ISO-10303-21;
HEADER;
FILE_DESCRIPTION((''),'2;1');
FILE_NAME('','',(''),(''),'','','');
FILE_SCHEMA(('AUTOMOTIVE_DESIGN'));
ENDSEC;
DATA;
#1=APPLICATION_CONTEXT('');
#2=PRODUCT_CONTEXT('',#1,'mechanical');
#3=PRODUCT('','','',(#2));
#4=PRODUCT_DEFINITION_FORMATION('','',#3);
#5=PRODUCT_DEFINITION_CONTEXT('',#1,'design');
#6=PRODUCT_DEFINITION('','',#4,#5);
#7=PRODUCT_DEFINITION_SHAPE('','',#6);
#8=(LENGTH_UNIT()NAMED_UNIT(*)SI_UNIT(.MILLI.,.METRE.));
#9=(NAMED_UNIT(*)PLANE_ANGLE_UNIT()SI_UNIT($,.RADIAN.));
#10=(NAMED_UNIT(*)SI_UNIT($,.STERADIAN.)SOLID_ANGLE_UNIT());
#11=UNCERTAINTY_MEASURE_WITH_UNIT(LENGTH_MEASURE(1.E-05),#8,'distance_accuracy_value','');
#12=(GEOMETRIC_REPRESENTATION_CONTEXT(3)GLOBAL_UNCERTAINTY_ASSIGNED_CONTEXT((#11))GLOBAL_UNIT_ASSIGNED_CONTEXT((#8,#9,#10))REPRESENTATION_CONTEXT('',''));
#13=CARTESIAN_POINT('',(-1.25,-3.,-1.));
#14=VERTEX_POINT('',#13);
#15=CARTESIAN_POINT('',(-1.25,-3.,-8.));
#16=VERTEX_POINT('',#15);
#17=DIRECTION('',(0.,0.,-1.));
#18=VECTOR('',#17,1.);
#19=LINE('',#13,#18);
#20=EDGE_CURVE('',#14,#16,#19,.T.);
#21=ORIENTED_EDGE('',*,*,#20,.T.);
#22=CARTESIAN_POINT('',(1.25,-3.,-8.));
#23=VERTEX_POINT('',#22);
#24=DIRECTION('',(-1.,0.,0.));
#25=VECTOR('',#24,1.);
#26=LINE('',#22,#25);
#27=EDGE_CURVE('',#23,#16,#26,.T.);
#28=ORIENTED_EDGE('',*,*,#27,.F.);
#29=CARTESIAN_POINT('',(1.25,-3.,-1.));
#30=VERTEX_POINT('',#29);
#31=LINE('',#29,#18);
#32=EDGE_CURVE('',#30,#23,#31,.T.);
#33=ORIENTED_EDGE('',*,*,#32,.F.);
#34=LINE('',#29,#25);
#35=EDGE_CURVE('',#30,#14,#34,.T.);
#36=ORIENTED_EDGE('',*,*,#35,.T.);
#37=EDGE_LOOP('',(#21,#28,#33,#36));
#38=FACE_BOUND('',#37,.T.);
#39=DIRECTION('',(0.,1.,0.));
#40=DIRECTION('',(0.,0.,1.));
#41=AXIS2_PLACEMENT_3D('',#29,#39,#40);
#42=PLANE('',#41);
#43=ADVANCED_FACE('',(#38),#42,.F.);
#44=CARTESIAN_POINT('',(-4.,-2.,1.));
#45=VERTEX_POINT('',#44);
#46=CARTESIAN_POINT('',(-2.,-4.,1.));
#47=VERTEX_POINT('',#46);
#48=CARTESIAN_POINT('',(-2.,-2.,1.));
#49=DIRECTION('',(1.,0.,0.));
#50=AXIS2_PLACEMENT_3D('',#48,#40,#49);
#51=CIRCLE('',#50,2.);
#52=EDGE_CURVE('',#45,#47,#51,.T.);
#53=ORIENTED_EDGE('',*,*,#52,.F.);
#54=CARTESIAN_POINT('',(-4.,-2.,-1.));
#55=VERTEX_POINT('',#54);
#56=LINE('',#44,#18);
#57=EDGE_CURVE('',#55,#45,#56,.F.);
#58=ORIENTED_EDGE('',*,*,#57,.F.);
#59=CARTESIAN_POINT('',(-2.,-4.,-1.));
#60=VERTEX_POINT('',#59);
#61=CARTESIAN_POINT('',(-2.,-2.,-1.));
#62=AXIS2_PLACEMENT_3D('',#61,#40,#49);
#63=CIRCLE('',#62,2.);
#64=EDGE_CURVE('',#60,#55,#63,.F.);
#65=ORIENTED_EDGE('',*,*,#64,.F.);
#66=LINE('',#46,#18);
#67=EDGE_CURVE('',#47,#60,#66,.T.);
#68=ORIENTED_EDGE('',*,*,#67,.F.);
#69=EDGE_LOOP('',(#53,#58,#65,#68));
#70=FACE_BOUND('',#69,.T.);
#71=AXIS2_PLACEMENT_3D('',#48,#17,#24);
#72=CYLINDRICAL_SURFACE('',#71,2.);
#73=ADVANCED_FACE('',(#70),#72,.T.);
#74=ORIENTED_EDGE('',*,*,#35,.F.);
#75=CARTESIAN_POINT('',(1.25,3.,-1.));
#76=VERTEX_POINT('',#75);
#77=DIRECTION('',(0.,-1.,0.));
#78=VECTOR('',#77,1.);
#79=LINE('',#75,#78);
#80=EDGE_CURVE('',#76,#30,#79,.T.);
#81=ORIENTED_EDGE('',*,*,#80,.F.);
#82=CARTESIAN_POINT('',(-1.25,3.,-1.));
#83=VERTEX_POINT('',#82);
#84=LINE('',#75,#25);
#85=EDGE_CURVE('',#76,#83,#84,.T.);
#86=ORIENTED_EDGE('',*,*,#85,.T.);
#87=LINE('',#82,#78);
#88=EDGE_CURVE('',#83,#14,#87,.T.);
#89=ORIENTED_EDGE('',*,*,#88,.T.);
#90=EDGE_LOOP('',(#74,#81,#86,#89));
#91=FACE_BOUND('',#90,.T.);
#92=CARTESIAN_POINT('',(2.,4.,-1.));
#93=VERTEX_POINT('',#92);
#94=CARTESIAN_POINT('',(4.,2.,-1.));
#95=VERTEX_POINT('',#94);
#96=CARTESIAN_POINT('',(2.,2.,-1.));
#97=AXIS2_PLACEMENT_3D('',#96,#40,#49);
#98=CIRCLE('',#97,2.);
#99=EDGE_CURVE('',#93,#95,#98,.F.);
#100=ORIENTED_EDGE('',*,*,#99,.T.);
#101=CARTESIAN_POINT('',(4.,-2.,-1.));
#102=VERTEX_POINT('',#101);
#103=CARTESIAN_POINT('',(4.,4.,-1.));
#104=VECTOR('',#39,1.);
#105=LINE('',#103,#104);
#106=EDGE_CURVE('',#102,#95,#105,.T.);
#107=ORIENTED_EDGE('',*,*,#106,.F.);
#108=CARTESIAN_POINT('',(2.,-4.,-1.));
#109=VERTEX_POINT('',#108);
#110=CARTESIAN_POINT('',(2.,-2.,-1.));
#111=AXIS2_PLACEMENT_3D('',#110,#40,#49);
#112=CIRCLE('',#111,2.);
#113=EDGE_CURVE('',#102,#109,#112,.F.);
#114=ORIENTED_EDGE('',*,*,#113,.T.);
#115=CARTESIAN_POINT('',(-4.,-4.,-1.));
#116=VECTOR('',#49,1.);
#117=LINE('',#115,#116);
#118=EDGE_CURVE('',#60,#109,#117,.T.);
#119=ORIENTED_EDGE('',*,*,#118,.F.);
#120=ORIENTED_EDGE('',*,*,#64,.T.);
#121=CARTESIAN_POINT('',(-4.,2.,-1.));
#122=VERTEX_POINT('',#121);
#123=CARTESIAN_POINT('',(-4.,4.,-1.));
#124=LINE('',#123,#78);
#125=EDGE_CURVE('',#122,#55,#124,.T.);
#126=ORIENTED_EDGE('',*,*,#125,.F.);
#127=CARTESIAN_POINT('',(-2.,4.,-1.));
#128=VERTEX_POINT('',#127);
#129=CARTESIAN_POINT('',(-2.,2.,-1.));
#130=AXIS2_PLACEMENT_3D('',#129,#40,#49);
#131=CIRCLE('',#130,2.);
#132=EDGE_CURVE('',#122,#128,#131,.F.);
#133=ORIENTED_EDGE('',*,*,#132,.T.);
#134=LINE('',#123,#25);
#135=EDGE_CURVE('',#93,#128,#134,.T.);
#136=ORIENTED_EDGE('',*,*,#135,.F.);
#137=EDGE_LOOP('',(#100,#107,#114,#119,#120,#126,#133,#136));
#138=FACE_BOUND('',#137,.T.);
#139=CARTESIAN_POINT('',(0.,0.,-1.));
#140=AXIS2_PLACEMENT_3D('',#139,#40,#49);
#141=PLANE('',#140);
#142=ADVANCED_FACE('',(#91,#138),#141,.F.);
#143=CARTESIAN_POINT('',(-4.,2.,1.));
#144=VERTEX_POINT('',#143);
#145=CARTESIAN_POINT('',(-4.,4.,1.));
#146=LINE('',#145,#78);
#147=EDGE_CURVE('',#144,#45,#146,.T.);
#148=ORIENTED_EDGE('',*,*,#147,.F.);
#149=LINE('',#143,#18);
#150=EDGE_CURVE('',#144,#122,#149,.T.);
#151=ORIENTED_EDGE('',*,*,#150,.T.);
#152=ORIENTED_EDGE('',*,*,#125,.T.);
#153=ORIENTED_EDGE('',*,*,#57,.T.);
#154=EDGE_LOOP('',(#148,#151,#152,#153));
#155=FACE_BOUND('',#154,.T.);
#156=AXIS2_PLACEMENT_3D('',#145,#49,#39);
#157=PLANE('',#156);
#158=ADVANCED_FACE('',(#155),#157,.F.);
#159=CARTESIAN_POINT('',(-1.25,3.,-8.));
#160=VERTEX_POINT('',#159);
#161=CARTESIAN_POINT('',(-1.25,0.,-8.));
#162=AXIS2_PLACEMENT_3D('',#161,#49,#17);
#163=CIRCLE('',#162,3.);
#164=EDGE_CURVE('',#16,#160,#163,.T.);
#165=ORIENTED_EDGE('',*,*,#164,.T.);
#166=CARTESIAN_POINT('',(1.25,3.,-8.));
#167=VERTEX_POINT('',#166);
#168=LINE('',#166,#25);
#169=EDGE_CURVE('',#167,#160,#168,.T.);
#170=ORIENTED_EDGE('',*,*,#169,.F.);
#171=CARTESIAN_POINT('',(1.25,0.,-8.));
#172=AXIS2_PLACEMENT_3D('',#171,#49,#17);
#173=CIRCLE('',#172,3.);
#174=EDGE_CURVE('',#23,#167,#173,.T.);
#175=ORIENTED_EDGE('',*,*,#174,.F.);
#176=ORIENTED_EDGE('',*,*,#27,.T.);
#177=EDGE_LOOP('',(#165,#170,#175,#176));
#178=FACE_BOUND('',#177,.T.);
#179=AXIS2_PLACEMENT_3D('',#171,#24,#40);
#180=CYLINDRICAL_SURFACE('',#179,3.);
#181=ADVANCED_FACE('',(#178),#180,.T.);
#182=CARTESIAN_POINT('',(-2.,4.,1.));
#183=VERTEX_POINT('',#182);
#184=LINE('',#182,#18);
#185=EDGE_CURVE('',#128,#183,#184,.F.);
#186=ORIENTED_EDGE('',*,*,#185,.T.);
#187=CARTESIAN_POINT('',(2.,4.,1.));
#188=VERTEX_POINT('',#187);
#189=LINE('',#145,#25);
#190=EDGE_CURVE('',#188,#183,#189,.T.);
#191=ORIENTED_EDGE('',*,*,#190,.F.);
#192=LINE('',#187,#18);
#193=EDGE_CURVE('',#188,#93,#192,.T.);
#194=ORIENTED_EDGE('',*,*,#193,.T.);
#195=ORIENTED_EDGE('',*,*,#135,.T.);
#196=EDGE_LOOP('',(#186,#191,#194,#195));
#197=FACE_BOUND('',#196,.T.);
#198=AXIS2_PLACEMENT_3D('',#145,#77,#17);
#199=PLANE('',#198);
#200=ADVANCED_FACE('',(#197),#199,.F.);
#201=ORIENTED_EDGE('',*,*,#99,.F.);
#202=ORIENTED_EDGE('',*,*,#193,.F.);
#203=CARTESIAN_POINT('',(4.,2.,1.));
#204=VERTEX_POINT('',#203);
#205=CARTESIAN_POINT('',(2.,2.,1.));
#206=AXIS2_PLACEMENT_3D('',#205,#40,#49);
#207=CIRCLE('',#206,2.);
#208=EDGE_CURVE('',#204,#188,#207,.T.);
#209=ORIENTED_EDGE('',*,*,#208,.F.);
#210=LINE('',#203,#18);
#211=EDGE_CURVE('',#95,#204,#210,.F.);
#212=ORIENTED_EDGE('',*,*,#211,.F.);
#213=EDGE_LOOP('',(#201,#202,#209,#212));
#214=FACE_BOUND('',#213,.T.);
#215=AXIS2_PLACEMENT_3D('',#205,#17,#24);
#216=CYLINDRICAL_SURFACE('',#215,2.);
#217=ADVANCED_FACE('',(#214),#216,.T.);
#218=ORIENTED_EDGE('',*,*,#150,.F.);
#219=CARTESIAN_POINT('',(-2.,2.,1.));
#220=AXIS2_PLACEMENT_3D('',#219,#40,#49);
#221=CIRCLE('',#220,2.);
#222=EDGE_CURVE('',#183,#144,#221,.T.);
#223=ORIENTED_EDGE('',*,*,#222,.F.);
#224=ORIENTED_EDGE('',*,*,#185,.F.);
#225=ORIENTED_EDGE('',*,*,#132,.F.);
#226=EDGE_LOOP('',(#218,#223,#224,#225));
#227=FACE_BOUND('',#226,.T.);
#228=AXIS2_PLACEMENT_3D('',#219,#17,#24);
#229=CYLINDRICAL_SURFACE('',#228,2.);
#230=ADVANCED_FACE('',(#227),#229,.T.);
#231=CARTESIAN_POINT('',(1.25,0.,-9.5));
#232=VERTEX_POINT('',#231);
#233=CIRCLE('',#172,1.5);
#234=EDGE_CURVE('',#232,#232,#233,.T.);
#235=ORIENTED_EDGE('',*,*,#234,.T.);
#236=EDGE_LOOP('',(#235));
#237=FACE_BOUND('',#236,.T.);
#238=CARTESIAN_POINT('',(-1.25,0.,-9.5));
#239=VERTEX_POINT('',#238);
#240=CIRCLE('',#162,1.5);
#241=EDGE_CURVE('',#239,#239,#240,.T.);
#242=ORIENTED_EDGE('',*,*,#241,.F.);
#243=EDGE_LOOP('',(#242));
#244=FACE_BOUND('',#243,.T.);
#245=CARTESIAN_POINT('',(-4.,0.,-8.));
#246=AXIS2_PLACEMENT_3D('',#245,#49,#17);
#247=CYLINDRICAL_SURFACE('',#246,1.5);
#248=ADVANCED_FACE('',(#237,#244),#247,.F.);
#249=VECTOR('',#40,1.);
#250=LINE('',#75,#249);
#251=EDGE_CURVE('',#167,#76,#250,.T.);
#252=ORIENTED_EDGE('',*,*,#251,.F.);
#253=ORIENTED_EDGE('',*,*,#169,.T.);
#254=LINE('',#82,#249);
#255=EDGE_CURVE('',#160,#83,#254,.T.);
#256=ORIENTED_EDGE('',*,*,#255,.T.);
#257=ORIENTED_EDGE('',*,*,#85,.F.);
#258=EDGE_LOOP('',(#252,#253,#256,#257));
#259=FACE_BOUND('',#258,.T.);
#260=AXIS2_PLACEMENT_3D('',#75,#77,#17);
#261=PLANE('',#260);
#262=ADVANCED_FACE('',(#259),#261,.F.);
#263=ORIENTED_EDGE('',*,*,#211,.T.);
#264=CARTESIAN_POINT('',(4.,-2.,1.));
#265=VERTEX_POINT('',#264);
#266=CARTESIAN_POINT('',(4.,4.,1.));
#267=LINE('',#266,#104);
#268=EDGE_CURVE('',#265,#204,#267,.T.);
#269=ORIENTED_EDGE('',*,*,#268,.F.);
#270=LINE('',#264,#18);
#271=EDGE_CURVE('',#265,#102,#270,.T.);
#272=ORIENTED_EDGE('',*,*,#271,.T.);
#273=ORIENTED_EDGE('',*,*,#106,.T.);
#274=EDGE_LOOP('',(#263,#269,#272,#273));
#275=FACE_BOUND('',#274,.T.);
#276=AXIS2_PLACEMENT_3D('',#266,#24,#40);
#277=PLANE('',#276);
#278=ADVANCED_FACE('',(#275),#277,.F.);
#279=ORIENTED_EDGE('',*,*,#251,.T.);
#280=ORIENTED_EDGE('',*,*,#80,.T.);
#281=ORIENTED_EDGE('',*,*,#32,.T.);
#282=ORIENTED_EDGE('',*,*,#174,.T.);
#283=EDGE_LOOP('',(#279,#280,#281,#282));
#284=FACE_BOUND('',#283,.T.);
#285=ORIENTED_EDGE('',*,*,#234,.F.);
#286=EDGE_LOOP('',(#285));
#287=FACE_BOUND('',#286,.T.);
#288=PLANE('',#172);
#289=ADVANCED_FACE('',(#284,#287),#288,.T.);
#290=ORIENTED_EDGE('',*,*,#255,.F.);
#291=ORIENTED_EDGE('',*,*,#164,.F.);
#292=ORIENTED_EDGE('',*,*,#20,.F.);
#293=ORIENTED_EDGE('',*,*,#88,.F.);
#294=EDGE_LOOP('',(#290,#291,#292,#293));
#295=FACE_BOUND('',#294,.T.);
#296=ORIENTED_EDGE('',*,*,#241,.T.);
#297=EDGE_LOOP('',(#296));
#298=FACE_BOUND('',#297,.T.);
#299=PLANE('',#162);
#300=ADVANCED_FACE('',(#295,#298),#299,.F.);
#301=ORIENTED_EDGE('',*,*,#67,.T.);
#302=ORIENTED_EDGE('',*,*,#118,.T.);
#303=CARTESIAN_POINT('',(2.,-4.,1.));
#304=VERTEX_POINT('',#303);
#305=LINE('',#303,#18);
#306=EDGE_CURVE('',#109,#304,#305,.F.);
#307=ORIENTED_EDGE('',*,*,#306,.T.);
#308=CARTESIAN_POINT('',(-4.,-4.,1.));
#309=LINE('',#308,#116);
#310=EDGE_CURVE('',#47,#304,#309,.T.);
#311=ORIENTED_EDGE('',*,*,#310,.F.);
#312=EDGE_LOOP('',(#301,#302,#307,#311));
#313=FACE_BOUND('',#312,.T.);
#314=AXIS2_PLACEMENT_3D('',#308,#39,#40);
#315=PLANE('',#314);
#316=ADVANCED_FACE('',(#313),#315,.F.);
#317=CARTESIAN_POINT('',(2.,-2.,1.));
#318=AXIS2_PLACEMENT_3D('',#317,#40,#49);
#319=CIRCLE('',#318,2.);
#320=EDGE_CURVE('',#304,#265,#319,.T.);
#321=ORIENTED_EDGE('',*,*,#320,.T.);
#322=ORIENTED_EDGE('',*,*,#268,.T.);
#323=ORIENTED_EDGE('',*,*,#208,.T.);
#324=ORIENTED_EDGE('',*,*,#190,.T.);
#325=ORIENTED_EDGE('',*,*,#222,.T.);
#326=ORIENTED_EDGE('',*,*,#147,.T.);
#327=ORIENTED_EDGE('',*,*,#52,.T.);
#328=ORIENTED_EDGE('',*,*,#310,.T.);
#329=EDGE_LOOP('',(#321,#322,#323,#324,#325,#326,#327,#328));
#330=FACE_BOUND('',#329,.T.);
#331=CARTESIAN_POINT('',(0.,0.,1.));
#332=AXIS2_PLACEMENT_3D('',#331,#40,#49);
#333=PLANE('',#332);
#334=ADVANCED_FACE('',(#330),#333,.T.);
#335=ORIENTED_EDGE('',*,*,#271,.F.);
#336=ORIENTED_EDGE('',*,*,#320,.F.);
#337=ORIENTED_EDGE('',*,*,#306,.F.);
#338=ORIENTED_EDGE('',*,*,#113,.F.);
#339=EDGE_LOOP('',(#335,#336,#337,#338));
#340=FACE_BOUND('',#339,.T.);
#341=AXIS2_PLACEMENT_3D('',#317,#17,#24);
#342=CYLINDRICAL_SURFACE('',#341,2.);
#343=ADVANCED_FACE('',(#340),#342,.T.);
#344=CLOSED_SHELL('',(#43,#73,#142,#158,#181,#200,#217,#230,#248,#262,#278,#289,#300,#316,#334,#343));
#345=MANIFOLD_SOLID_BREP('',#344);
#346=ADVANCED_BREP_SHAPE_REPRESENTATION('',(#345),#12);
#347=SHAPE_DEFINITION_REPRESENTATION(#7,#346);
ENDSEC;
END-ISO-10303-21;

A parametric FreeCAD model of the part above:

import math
import FreeCAD as App
import Part
import Sketcher
Q = App.Units.Quantity


def edges_at(feature, points):
    """Names of the edges that pass closest to the given points."""
    edges = feature.Shape.Edges
    near = lambda p: min(range(len(edges)), key=lambda i: edges[i].distToShape(Part.Vertex(*p))[0])
    return sorted({f"Edge{near(p) + 1}" for p in points})


def add_polygon(sketch, points):
    """Adds a closed chain of lines whose ends are joined by coincident constraints."""
    first, n = sketch.GeometryCount, len(points)
    for a, b in zip(points, points[1:] + points[:1]):
        sketch.addGeometry(Part.LineSegment(App.Vector(*a, 0), App.Vector(*b, 0)), False)
    for i in range(n):
        sketch.addConstraint(Sketcher.Constraint("Coincident", first + i, 2, first + (i + 1) % n, 1))

doc = App.newDocument("Part")
body = doc.addObject("PartDesign::Body", "Body")

# Sketch on XY plane
sketch1 = body.newObject("Sketcher::SketchObject", "Sketch")
sketch1.AttachmentSupport = (doc.getObject("XY_Plane"), [""])
sketch1.MapMode = "FlatFace"
add_polygon(sketch1, [(-4, 4), (-4, -4), (4, -4), (4, 4)])  # lines 0-3
sketch1.addConstraint([
    Sketcher.Constraint("Vertical", 0),
    Sketcher.Constraint("Horizontal", 1),
    Sketcher.Constraint("Vertical", 2),
    Sketcher.Constraint("Horizontal", 3),
    Sketcher.Constraint("Symmetric", 0, 2, 2, 2, -1, 1),
    Sketcher.Constraint("Equal", 3, 0),
    Sketcher.Constraint("DistanceX", 1, 1, 1, 2, Q("8 mm")),
])
pad1 = body.newObject("PartDesign::Pad", "Pad")
pad1.Profile = sketch1
pad1.Length = 2
pad1.Midplane = True
doc.recompute()

fillet = body.newObject("PartDesign::Fillet", "Fillet")
fillet.Base = (pad1, edges_at(pad1, [
    (-4, 4, 0),
    (4, 4, 0),
    (4, -4, 0),
    (-4, -4, 0),
]))
fillet.Radius = 2

# Sketch on YZ plane
sketch2 = body.newObject("Sketcher::SketchObject", "Sketch001")
sketch2.AttachmentSupport = (doc.getObject("YZ_Plane"), [""])
sketch2.MapMode = "FlatFace"
sketch2.addGeometry([
    Part.LineSegment(App.Vector(3, -8, 0), App.Vector(3, -1, 0)),
    Part.LineSegment(App.Vector(3, -1, 0), App.Vector(-3, -1, 0)),
    Part.LineSegment(App.Vector(-3, -1, 0), App.Vector(-3, -8, 0)),
    Part.ArcOfCircle(Part.Circle(App.Vector(0, -8, 0), App.Vector(0, 0, 1), 3), math.radians(180), math.radians(360)),
], False)
sketch2.addConstraint([
    Sketcher.Constraint("Coincident", 0, 2, 1, 1),
    Sketcher.Constraint("Coincident", 1, 2, 2, 1),
    Sketcher.Constraint("Tangent", 2, 2, 3, 1),
    Sketcher.Constraint("Tangent", 3, 2, 0, 1),
    Sketcher.Constraint("Vertical", 0),
    Sketcher.Constraint("Horizontal", 1),
    Sketcher.Constraint("Vertical", 2),
    Sketcher.Constraint("PointOnObject", 3, 3, -2),
    Sketcher.Constraint("Radius", 3, Q("3 mm")),
    Sketcher.Constraint("DistanceY", 0, 1, 0, 2, Q("7 mm")),
    Sketcher.Constraint("DistanceY", 3, 3, -1, 1, Q("8 mm")),
])
pad2 = body.newObject("PartDesign::Pad", "Pad001")
pad2.Profile = sketch2
pad2.Length = 2.5
pad2.Midplane = True

# Sketch on YZ plane
sketch3 = body.newObject("Sketcher::SketchObject", "Sketch002")
sketch3.AttachmentSupport = (doc.getObject("YZ_Plane"), [""])
sketch3.MapMode = "FlatFace"
sketch3.addGeometry(Part.Circle(App.Vector(0, -8, 0), App.Vector(0, 0, 1), 1.5), False)
sketch3.addConstraint([
    Sketcher.Constraint("PointOnObject", 0, 3, -2),
    Sketcher.Constraint("Diameter", 0, Q("3 mm")),
    Sketcher.Constraint("DistanceY", 0, 3, -1, 1, Q("8 mm")),
])
pocket1 = body.newObject("PartDesign::Pocket", "Pocket")
pocket1.Profile = sketch3
pocket1.Type = "ThroughAll"
pocket1.Midplane = True

doc.recompute()
